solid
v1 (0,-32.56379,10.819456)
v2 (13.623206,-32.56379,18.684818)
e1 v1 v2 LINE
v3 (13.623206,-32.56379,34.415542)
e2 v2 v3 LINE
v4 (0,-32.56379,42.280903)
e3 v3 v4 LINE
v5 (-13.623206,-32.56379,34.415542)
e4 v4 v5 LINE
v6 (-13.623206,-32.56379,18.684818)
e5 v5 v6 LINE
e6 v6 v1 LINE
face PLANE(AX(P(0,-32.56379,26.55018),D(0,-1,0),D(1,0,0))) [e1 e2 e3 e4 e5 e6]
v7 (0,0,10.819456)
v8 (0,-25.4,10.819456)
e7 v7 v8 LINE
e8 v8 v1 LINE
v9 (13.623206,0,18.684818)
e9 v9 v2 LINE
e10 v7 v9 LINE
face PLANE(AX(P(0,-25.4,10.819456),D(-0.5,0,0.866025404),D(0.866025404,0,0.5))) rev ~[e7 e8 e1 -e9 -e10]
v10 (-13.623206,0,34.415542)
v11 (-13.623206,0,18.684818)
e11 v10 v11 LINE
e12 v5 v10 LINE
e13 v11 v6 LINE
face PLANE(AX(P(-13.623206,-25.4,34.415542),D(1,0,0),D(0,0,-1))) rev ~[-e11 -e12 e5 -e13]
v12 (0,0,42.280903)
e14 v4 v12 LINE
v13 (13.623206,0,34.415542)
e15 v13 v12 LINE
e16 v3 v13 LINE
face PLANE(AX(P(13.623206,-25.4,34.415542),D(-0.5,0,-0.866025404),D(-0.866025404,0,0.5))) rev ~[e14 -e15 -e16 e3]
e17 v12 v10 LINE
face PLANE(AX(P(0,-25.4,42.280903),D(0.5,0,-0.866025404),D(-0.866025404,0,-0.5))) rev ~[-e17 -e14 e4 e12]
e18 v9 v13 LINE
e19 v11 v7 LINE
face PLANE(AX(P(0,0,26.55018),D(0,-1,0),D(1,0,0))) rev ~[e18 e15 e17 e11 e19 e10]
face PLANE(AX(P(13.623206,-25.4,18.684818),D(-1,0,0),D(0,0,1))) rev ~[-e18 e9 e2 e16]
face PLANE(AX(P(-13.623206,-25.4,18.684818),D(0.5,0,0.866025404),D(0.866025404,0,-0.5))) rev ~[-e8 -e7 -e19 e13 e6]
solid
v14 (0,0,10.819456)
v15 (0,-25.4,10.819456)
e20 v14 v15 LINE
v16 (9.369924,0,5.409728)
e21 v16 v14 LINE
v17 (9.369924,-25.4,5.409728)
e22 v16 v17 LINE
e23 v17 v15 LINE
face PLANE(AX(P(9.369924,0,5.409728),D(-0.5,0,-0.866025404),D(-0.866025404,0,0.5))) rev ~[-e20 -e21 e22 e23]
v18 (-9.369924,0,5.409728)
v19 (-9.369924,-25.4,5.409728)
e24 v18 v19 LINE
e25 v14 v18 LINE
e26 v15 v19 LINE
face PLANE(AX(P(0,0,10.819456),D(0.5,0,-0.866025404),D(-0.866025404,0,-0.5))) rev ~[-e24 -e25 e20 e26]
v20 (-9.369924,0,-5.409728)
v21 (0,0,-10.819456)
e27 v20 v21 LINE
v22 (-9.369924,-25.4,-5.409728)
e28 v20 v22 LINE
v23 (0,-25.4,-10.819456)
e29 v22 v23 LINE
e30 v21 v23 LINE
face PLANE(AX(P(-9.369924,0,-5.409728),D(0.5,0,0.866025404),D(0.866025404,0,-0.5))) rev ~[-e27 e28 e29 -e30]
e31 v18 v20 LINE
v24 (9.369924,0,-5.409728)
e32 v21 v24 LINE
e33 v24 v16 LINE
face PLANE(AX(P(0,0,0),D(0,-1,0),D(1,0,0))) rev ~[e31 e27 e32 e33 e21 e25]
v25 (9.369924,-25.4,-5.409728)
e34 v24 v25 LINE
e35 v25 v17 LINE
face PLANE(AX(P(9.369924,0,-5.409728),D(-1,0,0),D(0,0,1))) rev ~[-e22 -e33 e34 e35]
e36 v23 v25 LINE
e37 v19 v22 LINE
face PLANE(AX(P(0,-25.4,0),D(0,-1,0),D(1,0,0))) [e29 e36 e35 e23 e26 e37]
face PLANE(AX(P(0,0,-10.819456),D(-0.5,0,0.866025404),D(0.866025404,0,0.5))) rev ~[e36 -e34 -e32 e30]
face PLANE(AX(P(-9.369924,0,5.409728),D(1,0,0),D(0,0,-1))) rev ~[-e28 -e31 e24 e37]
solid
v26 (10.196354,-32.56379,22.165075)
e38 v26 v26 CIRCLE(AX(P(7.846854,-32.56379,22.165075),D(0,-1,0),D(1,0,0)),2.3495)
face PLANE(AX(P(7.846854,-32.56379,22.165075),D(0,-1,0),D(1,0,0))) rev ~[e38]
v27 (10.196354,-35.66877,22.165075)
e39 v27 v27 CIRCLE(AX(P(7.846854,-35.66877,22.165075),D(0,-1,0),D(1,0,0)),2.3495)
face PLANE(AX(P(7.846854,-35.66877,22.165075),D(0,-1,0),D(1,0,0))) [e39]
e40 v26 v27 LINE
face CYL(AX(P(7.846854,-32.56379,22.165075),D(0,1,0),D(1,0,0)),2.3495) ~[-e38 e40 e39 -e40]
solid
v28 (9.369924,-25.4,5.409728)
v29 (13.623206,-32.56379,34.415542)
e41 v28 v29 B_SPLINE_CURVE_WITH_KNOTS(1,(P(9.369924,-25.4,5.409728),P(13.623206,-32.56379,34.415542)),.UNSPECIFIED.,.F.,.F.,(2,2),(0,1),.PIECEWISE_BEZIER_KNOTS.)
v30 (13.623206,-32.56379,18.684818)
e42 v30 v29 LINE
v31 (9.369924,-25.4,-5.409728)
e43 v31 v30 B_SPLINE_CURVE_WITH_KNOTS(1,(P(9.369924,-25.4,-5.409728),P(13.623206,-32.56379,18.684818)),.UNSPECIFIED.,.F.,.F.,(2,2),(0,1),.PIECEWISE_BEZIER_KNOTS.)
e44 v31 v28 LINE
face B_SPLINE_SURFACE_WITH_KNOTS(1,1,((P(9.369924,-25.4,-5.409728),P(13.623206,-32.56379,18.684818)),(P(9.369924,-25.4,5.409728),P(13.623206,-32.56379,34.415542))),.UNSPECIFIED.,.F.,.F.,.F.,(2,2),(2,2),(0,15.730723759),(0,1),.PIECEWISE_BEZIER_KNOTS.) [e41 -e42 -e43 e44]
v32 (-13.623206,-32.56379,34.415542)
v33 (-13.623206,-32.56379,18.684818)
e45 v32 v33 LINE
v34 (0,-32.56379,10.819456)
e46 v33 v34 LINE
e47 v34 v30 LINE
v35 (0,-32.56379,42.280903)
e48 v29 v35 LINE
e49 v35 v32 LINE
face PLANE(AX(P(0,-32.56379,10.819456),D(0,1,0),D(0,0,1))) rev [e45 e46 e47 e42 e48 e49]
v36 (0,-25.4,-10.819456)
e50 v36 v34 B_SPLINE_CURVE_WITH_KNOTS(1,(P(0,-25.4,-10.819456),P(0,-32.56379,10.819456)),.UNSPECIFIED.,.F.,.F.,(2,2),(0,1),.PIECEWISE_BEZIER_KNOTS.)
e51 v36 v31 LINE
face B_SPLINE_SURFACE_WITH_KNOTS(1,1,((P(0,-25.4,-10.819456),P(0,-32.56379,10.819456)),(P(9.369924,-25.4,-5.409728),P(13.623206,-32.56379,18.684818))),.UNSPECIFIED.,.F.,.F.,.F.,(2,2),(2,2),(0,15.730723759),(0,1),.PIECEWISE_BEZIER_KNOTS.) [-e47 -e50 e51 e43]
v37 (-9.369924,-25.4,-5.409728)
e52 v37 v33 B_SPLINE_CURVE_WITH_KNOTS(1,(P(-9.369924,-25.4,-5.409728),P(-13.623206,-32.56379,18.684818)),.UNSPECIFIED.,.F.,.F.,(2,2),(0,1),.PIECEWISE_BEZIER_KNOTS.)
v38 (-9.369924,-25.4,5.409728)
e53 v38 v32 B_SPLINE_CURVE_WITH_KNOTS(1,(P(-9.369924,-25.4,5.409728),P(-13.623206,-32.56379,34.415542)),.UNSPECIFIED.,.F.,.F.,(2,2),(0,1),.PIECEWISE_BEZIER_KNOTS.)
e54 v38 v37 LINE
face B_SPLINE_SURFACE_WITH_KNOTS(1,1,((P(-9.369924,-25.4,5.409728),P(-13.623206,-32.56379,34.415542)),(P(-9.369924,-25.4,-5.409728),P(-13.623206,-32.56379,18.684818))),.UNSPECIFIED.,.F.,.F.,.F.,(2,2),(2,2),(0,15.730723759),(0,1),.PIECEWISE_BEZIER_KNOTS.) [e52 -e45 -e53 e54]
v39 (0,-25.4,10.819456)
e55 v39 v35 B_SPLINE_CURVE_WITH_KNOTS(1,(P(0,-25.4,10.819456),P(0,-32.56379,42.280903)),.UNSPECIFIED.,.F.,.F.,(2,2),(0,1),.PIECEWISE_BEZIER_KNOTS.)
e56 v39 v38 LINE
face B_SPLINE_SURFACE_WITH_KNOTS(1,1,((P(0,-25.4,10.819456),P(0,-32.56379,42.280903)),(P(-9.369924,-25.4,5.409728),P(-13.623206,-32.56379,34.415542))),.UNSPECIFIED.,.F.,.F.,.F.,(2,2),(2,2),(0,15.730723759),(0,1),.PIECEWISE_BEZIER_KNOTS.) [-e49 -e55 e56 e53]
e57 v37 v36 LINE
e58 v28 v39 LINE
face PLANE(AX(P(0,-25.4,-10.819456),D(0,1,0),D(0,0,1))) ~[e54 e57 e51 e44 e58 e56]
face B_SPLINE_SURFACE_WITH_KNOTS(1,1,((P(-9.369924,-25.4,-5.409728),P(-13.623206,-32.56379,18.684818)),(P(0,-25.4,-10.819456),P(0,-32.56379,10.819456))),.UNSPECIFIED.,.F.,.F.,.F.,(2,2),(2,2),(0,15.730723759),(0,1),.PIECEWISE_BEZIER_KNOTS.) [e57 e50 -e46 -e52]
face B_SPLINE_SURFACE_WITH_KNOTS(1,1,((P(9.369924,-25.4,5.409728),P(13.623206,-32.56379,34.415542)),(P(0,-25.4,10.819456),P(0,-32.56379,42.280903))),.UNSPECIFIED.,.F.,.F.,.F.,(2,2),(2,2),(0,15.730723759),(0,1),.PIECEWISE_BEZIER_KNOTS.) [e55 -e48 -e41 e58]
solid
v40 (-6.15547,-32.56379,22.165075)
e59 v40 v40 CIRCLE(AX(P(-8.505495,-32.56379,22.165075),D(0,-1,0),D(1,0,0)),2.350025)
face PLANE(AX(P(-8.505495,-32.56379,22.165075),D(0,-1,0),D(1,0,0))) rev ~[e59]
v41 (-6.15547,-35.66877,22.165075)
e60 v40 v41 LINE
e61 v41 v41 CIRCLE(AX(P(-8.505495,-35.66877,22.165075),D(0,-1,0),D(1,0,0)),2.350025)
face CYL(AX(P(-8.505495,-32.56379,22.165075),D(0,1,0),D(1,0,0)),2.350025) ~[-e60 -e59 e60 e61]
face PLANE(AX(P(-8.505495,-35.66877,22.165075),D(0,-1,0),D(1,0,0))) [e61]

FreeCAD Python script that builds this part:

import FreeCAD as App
import Part
import Sketcher
Q = App.Units.Quantity

doc = App.newDocument("Part")
params = doc.addObject("Spreadsheet::Sheet", "Params")
for row, (alias, value) in enumerate([
    ("pad1_length", "1 in"),
    ("pad2_length", "1 in"),
    ("pad3_length", "7.16379 mm"),
    ("pad4_length", "3.10498 mm"),
    ("sketch7_diameter", "0.185 in"),
    ("pad5_length", "3.10498 mm"),
], start=1):
    params.set(f"A{row}", alias)
    params.set(f"B{row}", "=" + value)
    params.setAlias(f"B{row}", alias)

body = doc.addObject("PartDesign::Body", "Body")

sketch1 = doc.addObject("Sketcher::SketchObject", "Sketch")
body.addObject(sketch1)
sketch1.AttachmentSupport = (doc.XZ_Plane, [""])
sketch1.MapMode = "FlatFace"
sketch1.addGeometry([
    Part.LineSegment(App.Vector(-14, 19, 0), App.Vector(0, 11, 0)),
    Part.LineSegment(App.Vector(0, 11, 0), App.Vector(14, 19, 0)),
    Part.LineSegment(App.Vector(14, 19, 0), App.Vector(14, 34, 0)),
    Part.LineSegment(App.Vector(14, 34, 0), App.Vector(0, 42, 0)),
    Part.LineSegment(App.Vector(0, 42, 0), App.Vector(-14, 34, 0)),
    Part.LineSegment(App.Vector(-14, 34, 0), App.Vector(-14, 19, 0)),
], False)
sketch1.addConstraint([
    Sketcher.Constraint("Coincident", 0, 2, 1, 1),
    Sketcher.Constraint("Coincident", 1, 2, 2, 1),
    Sketcher.Constraint("Coincident", 2, 2, 3, 1),
    Sketcher.Constraint("Coincident", 3, 2, 4, 1),
    Sketcher.Constraint("Coincident", 4, 2, 5, 1),
    Sketcher.Constraint("Coincident", 5, 2, 0, 1),
    Sketcher.Constraint("Vertical", 2),
    Sketcher.Constraint("Vertical", 5),
    Sketcher.Constraint("Symmetric", 2, 2, 4, 2, -2),
    Sketcher.Constraint("PointOnObject", 0, 2, -2),
    Sketcher.Constraint("PointOnObject", 3, 2, -2),
    Sketcher.Constraint("Parallel", 0, 3),
    Sketcher.Constraint("Parallel", 1, 4),
    Sketcher.Constraint("Angle", 0, Q("-30 deg")),
    Sketcher.Constraint("DistanceY", 2, 1, 2, 2, 15.730724),
    Sketcher.Constraint("DistanceY", -1, 1, 2, 2, 34.415542),
    Sketcher.Constraint("DistanceY", 0, 2, 1, 2, 7.865362),
])
pad1 = doc.addObject("PartDesign::Pad", "Pad")
body.addObject(pad1)
pad1.Profile = sketch1
pad1.setExpression("Length", "Params.pad1_length")
body2 = doc.addObject("PartDesign::Body", "Body001")

sketch2 = doc.addObject("Sketcher::SketchObject", "Sketch001")
body2.addObject(sketch2)
sketch2.AttachmentSupport = (doc.getObject("XZ_Plane001"), [""])
sketch2.MapMode = "FlatFace"
sketch2.addGeometry([
    Part.LineSegment(App.Vector(9, -5, 0), App.Vector(9, 5, 0)),
    Part.LineSegment(App.Vector(9, 5, 0), App.Vector(0, 11, 0)),
    Part.LineSegment(App.Vector(0, 11, 0), App.Vector(-9, 5, 0)),
    Part.LineSegment(App.Vector(-9, 5, 0), App.Vector(-9, -5, 0)),
    Part.LineSegment(App.Vector(-9, -5, 0), App.Vector(0, -11, 0)),
    Part.LineSegment(App.Vector(0, -11, 0), App.Vector(9, -5, 0)),
], False)
sketch2.addConstraint([
    Sketcher.Constraint("Coincident", 0, 2, 1, 1),
    Sketcher.Constraint("Coincident", 1, 2, 2, 1),
    Sketcher.Constraint("Coincident", 2, 2, 3, 1),
    Sketcher.Constraint("Coincident", 3, 2, 4, 1),
    Sketcher.Constraint("Coincident", 4, 2, 5, 1),
    Sketcher.Constraint("Coincident", 5, 2, 0, 1),
    Sketcher.Constraint("Vertical", 0),
    Sketcher.Constraint("Vertical", 3),
    Sketcher.Constraint("Symmetric", 0, 2, 3, 2, -1, 1),
    Sketcher.Constraint("Symmetric", 1, 2, 4, 2, -1, 1),
    Sketcher.Constraint("PointOnObject", 1, 2, -2),
    Sketcher.Constraint("Parallel", 2, 5),
    Sketcher.Constraint("Horizontal", 0, 2, 2, 2),
    Sketcher.Constraint("Angle", 1, Q("150 deg")),
    Sketcher.Constraint("DistanceY", 0, 1, 0, 2, 10.819456),
    Sketcher.Constraint("DistanceY", 4, 2, 1, 2, 21.638912),
])
pad2 = doc.addObject("PartDesign::Pad", "Pad001")
body2.addObject(pad2)
pad2.Profile = sketch2
pad2.setExpression("Length", "Params.pad2_length")
body.AllowCompound = True
doc.recompute()

boolean = doc.addObject("PartDesign::Boolean", "Boolean")
body.addObject(boolean)
boolean.Type = "Fuse"
boolean.addObjects([body2])

sketch3 = doc.addObject("Sketcher::SketchObject", "Sketch002")
body.addObject(sketch3)
sketch3.AttachmentSupport = (doc.XZ_Plane, [""])
sketch3.MapMode = "FlatFace"
sketch3.AttachmentOffset = App.Placement(App.Vector(0, 0, 1 * 25.4), App.Rotation())
sketch3.addGeometry([
    Part.LineSegment(App.Vector(-14, 34, 0), App.Vector(-14, 19, 0)),
    Part.LineSegment(App.Vector(-14, 19, 0), App.Vector(0, 11, 0)),
    Part.LineSegment(App.Vector(0, 11, 0), App.Vector(14, 19, 0)),
    Part.LineSegment(App.Vector(14, 19, 0), App.Vector(14, 34, 0)),
    Part.LineSegment(App.Vector(14, 34, 0), App.Vector(0, 42, 0)),
    Part.LineSegment(App.Vector(0, 42, 0), App.Vector(-14, 34, 0)),
], False)
sketch3.addConstraint([
    Sketcher.Constraint("Coincident", 0, 2, 1, 1),
    Sketcher.Constraint("Coincident", 1, 2, 2, 1),
    Sketcher.Constraint("Coincident", 2, 2, 3, 1),
    Sketcher.Constraint("Coincident", 3, 2, 4, 1),
    Sketcher.Constraint("Coincident", 4, 2, 5, 1),
    Sketcher.Constraint("Coincident", 5, 2, 0, 1),
    Sketcher.Constraint("Vertical", 0),
    Sketcher.Constraint("Vertical", 3),
    Sketcher.Constraint("Symmetric", 0, 2, 2, 2, -2),
    Sketcher.Constraint("PointOnObject", 1, 2, -2),
    Sketcher.Constraint("PointOnObject", 4, 2, -2),
    Sketcher.Constraint("Parallel", 1, 4),
    Sketcher.Constraint("Parallel", 2, 5),
    Sketcher.Constraint("Angle", 1, Q("-30 deg")),
    Sketcher.Constraint("DistanceY", 0, 2, 0, 1, 15.730724),
    Sketcher.Constraint("DistanceY", -1, 1, 3, 2, 34.415542),
    Sketcher.Constraint("DistanceY", 1, 2, 0, 2, 7.865362),
])
pad3 = doc.addObject("PartDesign::Pad", "Pad002")
body.addObject(pad3)
pad3.Profile = sketch3
pad3.setExpression("Length", "Params.pad3_length")
body3 = doc.addObject("PartDesign::Body", "Body002")

sketch4 = doc.addObject("Sketcher::SketchObject", "Sketch003")
body3.addObject(sketch4)
sketch4.AttachmentSupport = (doc.getObject("XZ_Plane002"), [""])
sketch4.MapMode = "FlatFace"
sketch4.AttachmentOffset = App.Placement(App.Vector(0, 0, 1 * 25.4), App.Rotation())
sketch4.addGeometry([
    Part.LineSegment(App.Vector(0, -11, 0), App.Vector(9, -5, 0)),
    Part.LineSegment(App.Vector(9, -5, 0), App.Vector(9, 5, 0)),
    Part.LineSegment(App.Vector(9, 5, 0), App.Vector(0, 11, 0)),
    Part.LineSegment(App.Vector(0, 11, 0), App.Vector(-9, 5, 0)),
    Part.LineSegment(App.Vector(-9, 5, 0), App.Vector(-9, -5, 0)),
    Part.LineSegment(App.Vector(-9, -5, 0), App.Vector(0, -11, 0)),
], False)
sketch4.addConstraint([
    Sketcher.Constraint("Coincident", 0, 2, 1, 1),
    Sketcher.Constraint("Coincident", 1, 2, 2, 1),
    Sketcher.Constraint("Coincident", 2, 2, 3, 1),
    Sketcher.Constraint("Coincident", 3, 2, 4, 1),
    Sketcher.Constraint("Coincident", 4, 2, 5, 1),
    Sketcher.Constraint("Coincident", 5, 2, 0, 1),
    Sketcher.Constraint("Vertical", 1),
    Sketcher.Constraint("Vertical", 4),
    Sketcher.Constraint("Symmetric", 0, 2, 3, 2, -1, 1),
    Sketcher.Constraint("Symmetric", 2, 2, 5, 2, -1, 1),
    Sketcher.Constraint("PointOnObject", 2, 2, -2),
    Sketcher.Constraint("Parallel", 2, 5),
    Sketcher.Constraint("Horizontal", 1, 2, 3, 2),
    Sketcher.Constraint("Angle", 0, Q("30 deg")),
    Sketcher.Constraint("DistanceY", 1, 1, 1, 2, 10.819456),
    Sketcher.Constraint("DistanceY", 5, 2, 2, 2, 21.638912),
])

sketch5 = doc.addObject("Sketcher::SketchObject", "Sketch004")
body3.addObject(sketch5)
sketch5.AttachmentSupport = (doc.getObject("XZ_Plane002"), [""])
sketch5.MapMode = "FlatFace"
sketch5.AttachmentOffset = App.Placement(App.Vector(0, 0, 32.56379), App.Rotation())
sketch5.addGeometry([
    Part.LineSegment(App.Vector(-14, 34, 0), App.Vector(-14, 19, 0)),
    Part.LineSegment(App.Vector(-14, 19, 0), App.Vector(0, 11, 0)),
    Part.LineSegment(App.Vector(0, 11, 0), App.Vector(14, 19, 0)),
    Part.LineSegment(App.Vector(14, 19, 0), App.Vector(14, 34, 0)),
    Part.LineSegment(App.Vector(14, 34, 0), App.Vector(0, 42, 0)),
    Part.LineSegment(App.Vector(0, 42, 0), App.Vector(-14, 34, 0)),
], False)
sketch5.addConstraint([
    Sketcher.Constraint("Coincident", 0, 2, 1, 1),
    Sketcher.Constraint("Coincident", 1, 2, 2, 1),
    Sketcher.Constraint("Coincident", 2, 2, 3, 1),
    Sketcher.Constraint("Coincident", 3, 2, 4, 1),
    Sketcher.Constraint("Coincident", 4, 2, 5, 1),
    Sketcher.Constraint("Coincident", 5, 2, 0, 1),
    Sketcher.Constraint("Vertical", 0),
    Sketcher.Constraint("Vertical", 3),
    Sketcher.Constraint("Symmetric", 0, 2, 2, 2, -2),
    Sketcher.Constraint("PointOnObject", 1, 2, -2),
    Sketcher.Constraint("PointOnObject", 4, 2, -2),
    Sketcher.Constraint("Parallel", 1, 4),
    Sketcher.Constraint("Parallel", 2, 5),
    Sketcher.Constraint("Angle", 1, Q("-30 deg")),
    Sketcher.Constraint("DistanceY", 0, 2, 0, 1, 15.730724),
    Sketcher.Constraint("DistanceY", -1, 1, 3, 2, 34.415542),
    Sketcher.Constraint("DistanceY", 1, 2, 0, 2, 7.865362),
])

additiveloft = doc.addObject("PartDesign::AdditiveLoft", "AdditiveLoft")
body3.addObject(additiveloft)
additiveloft.Profile = sketch4
additiveloft.Sections = [sketch5]
body4 = doc.addObject("PartDesign::Body", "Body003")

sketch6 = doc.addObject("Sketcher::SketchObject", "Sketch005")
body4.addObject(sketch6)
sketch6.AttachmentSupport = (doc.getObject("XZ_Plane003"), [""])
sketch6.MapMode = "FlatFace"
sketch6.AttachmentOffset = App.Placement(App.Vector(0, 0, 32.56379), App.Rotation())
sketch6.addGeometry(Part.Circle(App.Vector(-8.5, 22.2, 0), App.Vector(0, 0, 1), 2.4), False)
sketch6.addConstraint([
    Sketcher.Constraint("Diameter", 0, 4.70005),
    Sketcher.Constraint("DistanceX", 0, 3, -1, 1, 8.505495),
    Sketcher.Constraint("DistanceY", -1, 1, 0, 3, 22.165075),
])
pad4 = doc.addObject("PartDesign::Pad", "Pad003")
body4.addObject(pad4)
pad4.Profile = sketch6
pad4.setExpression("Length", "Params.pad4_length")
body5 = doc.addObject("PartDesign::Body", "Body004")

sketch7 = doc.addObject("Sketcher::SketchObject", "Sketch006")
body5.addObject(sketch7)
sketch7.AttachmentSupport = (doc.getObject("XZ_Plane004"), [""])
sketch7.MapMode = "FlatFace"
sketch7.AttachmentOffset = App.Placement(App.Vector(0, 0, 32.56379), App.Rotation())
sketch7.addGeometry(Part.Circle(App.Vector(7.8, 22.2, 0), App.Vector(0, 0, 1), 2.3), False)
sketch7.addConstraint([
    Sketcher.Constraint("Diameter", 0, Q("0.185 in")),
    Sketcher.Constraint("DistanceX", -1, 1, 0, 3, 7.846854),
    Sketcher.Constraint("DistanceY", -1, 1, 0, 3, 22.165075),
])
sketch7.setExpression("Constraints[0]", "Params.sketch7_diameter")
pad5 = doc.addObject("PartDesign::Pad", "Pad004")
body5.addObject(pad5)
pad5.Profile = sketch7
pad5.setExpression("Length", "Params.pad5_length")

doc.recompute()
